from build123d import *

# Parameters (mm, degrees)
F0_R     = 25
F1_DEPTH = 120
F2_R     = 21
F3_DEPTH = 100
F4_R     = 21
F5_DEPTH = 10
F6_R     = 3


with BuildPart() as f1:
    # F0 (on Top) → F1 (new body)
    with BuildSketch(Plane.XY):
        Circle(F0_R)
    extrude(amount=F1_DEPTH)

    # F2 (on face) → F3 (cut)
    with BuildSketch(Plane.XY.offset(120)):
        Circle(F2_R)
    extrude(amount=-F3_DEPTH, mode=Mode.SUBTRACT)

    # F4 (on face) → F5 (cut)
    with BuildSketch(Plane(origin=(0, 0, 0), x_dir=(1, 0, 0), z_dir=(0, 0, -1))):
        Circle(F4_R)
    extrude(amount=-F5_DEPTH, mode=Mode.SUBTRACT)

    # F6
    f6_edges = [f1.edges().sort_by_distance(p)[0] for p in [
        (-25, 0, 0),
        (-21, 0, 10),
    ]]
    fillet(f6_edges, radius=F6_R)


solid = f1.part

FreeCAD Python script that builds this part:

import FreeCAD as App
import Part
import Sketcher
Q = App.Units.Quantity


def edges_at(feature, points):
    """Names of the edges that pass closest to the given points."""
    edges = feature.Shape.Edges
    near = lambda p: min(range(len(edges)), key=lambda i: edges[i].distToShape(Part.Vertex(*p))[0])
    return sorted({f"Edge{near(p) + 1}" for p in points})

doc = App.newDocument("Part")
params = doc.addObject("Spreadsheet::Sheet", "Params")
for row, (alias, value) in enumerate([
    ("sketch1_diameter", "50 mm"),
    ("pad1_length", "120 mm"),
    ("sketch2_diameter", "42 mm"),
    ("pocket1_length", "100 mm"),
    ("sketch3_diameter", "42 mm"),
    ("pocket2_length", "10 mm"),
    ("fillet_radius", "3 mm"),
], start=1):
    params.set(f"A{row}", alias)
    params.set(f"B{row}", "=" + value)
    params.setAlias(f"B{row}", alias)

body = doc.addObject("PartDesign::Body", "Body")

# Sketch on XY plane
sketch1 = body.newObject("Sketcher::SketchObject", "Sketch")
sketch1.AttachmentSupport = (doc.getObject("XY_Plane"), [""])
sketch1.MapMode = "FlatFace"
sketch1.addGeometry(Part.Circle(App.Vector(0, 0, 0), App.Vector(0, 0, 1), 25), False)
sketch1.addConstraint(Sketcher.Constraint("Coincident", 0, 3, -1, 1))
sketch1.addConstraint(Sketcher.Constraint("Diameter", 0, Q("50 mm")))
sketch1.setExpression("Constraints[1]", "Params.sketch1_diameter")
pad1 = body.newObject("PartDesign::Pad", "Pad")
pad1.Profile = sketch1
pad1.setExpression("Length", "Params.pad1_length")

# Sketch on XY plane
sketch2 = body.newObject("Sketcher::SketchObject", "Sketch001")
sketch2.AttachmentSupport = (doc.getObject("XY_Plane"), [""])
sketch2.MapMode = "FlatFace"
sketch2.AttachmentOffset = App.Placement(App.Vector(0, 0, 120), App.Rotation())
sketch2.addGeometry(Part.Circle(App.Vector(0, 0, 0), App.Vector(0, 0, 1), 21), False)
sketch2.addConstraint(Sketcher.Constraint("Coincident", 0, 3, -1, 1))
sketch2.addConstraint(Sketcher.Constraint("Diameter", 0, Q("42 mm")))
sketch2.setExpression("Constraints[1]", "Params.sketch2_diameter")
pocket1 = body.newObject("PartDesign::Pocket", "Pocket")
pocket1.Profile = sketch2
pocket1.setExpression("Length", "Params.pocket1_length")

# Sketch on XY plane
sketch3 = body.newObject("Sketcher::SketchObject", "Sketch002")
sketch3.AttachmentSupport = (doc.getObject("XY_Plane"), [""])
sketch3.MapMode = "FlatFace"
sketch3.addGeometry(Part.Circle(App.Vector(0, 0, 0), App.Vector(0, 0, 1), 21), False)
sketch3.addConstraint(Sketcher.Constraint("Coincident", 0, 3, -1, 1))
sketch3.addConstraint(Sketcher.Constraint("Diameter", 0, Q("42 mm")))
sketch3.setExpression("Constraints[1]", "Params.sketch3_diameter")
pocket2 = body.newObject("PartDesign::Pocket", "Pocket001")
pocket2.Profile = sketch3
pocket2.setExpression("Length", "Params.pocket2_length")
pocket2.Reversed = True
doc.recompute()

fillet = body.newObject("PartDesign::Fillet", "Fillet")
fillet.Base = (pocket2, edges_at(pocket2, [(-25, 0, 0), (-21, 0, 10)]))
fillet.setExpression("Radius", "Params.fillet_radius")

doc.recompute()
